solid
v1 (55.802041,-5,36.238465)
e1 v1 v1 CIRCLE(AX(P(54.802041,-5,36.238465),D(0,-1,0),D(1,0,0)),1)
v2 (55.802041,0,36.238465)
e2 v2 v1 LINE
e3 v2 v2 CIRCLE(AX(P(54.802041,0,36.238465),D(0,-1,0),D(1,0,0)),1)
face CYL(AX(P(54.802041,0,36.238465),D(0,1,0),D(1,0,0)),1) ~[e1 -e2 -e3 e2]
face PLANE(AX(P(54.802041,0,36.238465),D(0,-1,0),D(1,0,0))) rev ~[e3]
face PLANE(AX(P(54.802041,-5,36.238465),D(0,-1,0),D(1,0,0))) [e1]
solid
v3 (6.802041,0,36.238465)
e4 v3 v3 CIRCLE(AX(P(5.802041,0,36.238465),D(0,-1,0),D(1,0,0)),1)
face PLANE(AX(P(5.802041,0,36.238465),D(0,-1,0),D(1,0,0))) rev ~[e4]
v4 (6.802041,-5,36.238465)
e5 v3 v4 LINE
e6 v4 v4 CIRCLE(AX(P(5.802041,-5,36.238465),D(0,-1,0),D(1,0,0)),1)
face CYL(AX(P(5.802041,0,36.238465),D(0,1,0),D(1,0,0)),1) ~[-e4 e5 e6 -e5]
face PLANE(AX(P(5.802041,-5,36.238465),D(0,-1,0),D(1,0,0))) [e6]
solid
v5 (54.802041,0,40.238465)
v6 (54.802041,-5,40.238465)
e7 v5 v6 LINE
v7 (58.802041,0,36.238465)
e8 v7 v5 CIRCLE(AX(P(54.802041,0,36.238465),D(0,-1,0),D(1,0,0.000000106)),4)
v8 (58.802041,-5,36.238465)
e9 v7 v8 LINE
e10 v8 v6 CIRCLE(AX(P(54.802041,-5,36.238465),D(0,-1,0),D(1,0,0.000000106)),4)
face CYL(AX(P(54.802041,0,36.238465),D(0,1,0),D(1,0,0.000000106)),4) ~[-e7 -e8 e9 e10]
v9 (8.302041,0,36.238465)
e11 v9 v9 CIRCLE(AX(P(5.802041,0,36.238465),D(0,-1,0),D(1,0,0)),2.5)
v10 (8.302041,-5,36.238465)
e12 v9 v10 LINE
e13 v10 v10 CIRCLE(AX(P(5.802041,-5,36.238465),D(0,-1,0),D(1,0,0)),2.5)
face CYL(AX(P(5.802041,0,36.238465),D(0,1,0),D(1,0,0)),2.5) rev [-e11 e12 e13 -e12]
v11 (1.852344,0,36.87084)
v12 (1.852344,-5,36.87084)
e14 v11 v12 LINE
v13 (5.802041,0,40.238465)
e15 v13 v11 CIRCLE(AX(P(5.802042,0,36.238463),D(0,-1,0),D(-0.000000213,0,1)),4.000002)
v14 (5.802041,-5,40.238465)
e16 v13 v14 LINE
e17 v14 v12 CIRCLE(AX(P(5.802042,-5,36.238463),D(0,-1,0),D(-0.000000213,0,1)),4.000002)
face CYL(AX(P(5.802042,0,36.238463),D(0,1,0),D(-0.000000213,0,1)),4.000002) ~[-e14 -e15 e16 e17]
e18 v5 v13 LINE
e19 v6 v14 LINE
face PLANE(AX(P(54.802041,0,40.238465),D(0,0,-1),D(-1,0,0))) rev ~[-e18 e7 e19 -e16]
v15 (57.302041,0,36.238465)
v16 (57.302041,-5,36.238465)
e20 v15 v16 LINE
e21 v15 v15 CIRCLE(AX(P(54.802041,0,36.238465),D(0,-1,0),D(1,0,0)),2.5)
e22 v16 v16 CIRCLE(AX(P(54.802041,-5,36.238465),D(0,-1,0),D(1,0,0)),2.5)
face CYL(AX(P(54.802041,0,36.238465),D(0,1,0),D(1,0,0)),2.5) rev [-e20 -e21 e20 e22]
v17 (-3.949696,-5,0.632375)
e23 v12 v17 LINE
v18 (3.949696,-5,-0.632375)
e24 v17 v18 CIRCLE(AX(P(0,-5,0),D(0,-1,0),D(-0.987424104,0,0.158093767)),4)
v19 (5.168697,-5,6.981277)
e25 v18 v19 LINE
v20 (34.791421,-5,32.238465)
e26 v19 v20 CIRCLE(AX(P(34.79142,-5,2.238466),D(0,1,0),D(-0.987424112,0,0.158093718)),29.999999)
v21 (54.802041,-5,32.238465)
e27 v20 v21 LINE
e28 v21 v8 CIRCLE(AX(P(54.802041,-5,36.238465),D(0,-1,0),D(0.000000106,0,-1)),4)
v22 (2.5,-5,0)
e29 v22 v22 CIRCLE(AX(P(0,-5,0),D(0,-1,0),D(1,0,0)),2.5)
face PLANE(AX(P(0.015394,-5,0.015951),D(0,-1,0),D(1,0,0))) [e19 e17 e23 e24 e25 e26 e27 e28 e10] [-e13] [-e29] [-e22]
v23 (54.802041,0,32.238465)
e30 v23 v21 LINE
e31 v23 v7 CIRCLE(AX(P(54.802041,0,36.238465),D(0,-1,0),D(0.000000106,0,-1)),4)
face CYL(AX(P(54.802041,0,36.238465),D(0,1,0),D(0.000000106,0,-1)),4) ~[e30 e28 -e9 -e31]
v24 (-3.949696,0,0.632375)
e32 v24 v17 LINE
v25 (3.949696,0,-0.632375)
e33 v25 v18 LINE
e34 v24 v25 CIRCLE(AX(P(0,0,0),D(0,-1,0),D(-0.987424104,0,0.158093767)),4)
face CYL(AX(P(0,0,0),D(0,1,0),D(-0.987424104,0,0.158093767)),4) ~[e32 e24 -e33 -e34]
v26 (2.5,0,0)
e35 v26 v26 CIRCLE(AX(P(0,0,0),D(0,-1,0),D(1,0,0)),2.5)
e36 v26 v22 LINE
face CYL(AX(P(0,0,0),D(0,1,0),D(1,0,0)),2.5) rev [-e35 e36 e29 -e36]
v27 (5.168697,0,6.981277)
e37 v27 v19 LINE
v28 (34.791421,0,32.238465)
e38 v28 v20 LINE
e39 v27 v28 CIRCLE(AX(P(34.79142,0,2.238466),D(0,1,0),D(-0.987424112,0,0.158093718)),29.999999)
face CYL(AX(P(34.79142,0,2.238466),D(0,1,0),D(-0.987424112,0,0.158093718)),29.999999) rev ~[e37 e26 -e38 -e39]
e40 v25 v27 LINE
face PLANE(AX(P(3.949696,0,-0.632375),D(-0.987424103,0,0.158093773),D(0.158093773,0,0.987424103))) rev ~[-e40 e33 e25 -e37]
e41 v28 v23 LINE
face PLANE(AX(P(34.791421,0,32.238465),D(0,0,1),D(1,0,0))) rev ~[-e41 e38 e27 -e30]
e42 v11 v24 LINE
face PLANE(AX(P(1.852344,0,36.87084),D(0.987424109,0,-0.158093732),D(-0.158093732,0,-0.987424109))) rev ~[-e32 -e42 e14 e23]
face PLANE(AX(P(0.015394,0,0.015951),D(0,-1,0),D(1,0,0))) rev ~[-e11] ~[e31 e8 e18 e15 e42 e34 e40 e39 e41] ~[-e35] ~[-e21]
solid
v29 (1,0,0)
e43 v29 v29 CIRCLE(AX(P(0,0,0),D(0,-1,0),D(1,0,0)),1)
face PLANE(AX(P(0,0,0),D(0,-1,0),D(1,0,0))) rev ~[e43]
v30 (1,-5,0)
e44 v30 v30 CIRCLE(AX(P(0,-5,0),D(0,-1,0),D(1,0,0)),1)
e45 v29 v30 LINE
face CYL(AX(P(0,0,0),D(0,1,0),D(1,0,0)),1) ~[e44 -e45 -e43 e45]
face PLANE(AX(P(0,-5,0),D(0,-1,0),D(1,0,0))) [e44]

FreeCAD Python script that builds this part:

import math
import FreeCAD as App
import Part
import Sketcher
Q = App.Units.Quantity

doc = App.newDocument("Part")
body = doc.addObject("PartDesign::Body", "Body")
body.AllowCompound = True

# Sketch on XZ plane
sketch1 = body.newObject("Sketcher::SketchObject", "Sketch")
sketch1.AttachmentSupport = (doc.getObject("XZ_Plane"), [""])
sketch1.MapMode = "FlatFace"
sketch1.addGeometry(Part.ArcOfCircle(Part.Circle(App.Vector(0, 0, 0), App.Vector(0, 0, 1), 4), math.radians(170.903731), math.radians(350.903731)), False)
sketch1.addGeometry(Part.LineSegment(App.Vector(3.949696, -0.632375, 0), App.Vector(5.168697, 6.981277, 0)), False)
sketch1.addGeometry(Part.ArcOfCircle(Part.Circle(App.Vector(34.79142, 2.238466, 0), App.Vector(0, 0, 1), 29.999999), math.radians(89.999998), math.radians(170.903734)), False)
sketch1.addGeometry(Part.LineSegment(App.Vector(34.791421, 32.238465, 0), App.Vector(54.802041, 32.238465, 0)), False)
sketch1.addGeometry(Part.ArcOfCircle(Part.Circle(App.Vector(54.802041, 36.238465, 0), App.Vector(0, 0, 1), 4), math.radians(-89.999994), math.radians(-0.000006)), False)
sketch1.addGeometry(Part.ArcOfCircle(Part.Circle(App.Vector(54.802041, 36.238465, 0), App.Vector(0, 0, 1), 4), math.radians(0.000006), math.radians(89.999994)), False)
sketch1.addGeometry(Part.LineSegment(App.Vector(54.802041, 40.238465, 0), App.Vector(5.802041, 40.238465, 0)), False)
sketch1.addGeometry(Part.ArcOfCircle(Part.Circle(App.Vector(5.802042, 36.238463, 0), App.Vector(0, 0, 1), 4.000002), math.radians(90.000012), math.radians(170.903712)), False)
sketch1.addGeometry(Part.LineSegment(App.Vector(1.852344, 36.87084, 0), App.Vector(-3.949696, 0.632375, 0)), False)
sketch1.addGeometry(Part.Circle(App.Vector(0, 0, 0), App.Vector(0, 0, 1), 2.5), False)
sketch1.addGeometry(Part.Circle(App.Vector(5.802041, 36.238465, 0), App.Vector(0, 0, 1), 2.5), False)
sketch1.addGeometry(Part.Circle(App.Vector(54.802041, 36.238465, 0), App.Vector(0, 0, 1), 2.5), False)
sketch1.addGeometry(Part.Circle(App.Vector(5.802041, 36.238465, 0), App.Vector(0, 0, 1), 1), False)
sketch1.addGeometry(Part.Circle(App.Vector(0, 0, 0), App.Vector(0, 0, 1), 1), False)
sketch1.addGeometry(Part.Circle(App.Vector(54.802041, 36.238465, 0), App.Vector(0, 0, 1), 1), False)
sketch1.addConstraint(Sketcher.Constraint("Tangent", 0, 2, 1, 1))
sketch1.addConstraint(Sketcher.Constraint("Tangent", 1, 2, 2, 2))
sketch1.addConstraint(Sketcher.Constraint("Tangent", 2, 1, 3, 1))
sketch1.addConstraint(Sketcher.Constraint("Tangent", 3, 2, 4, 1))
sketch1.addConstraint(Sketcher.Constraint("Tangent", 4, 2, 5, 1))
sketch1.addConstraint(Sketcher.Constraint("Tangent", 5, 2, 6, 1))
sketch1.addConstraint(Sketcher.Constraint("Tangent", 6, 2, 7, 1))
sketch1.addConstraint(Sketcher.Constraint("Tangent", 7, 2, 8, 1))
sketch1.addConstraint(Sketcher.Constraint("Tangent", 8, 2, 0, 1))
sketch1.addConstraint(Sketcher.Constraint("Horizontal", 3))
sketch1.addConstraint(Sketcher.Constraint("Horizontal", 6))
sketch1.addConstraint(Sketcher.Constraint("Coincident", 0, 3, -1, 1))
sketch1.addConstraint(Sketcher.Constraint("Coincident", 9, 3, -1, 1))
sketch1.addConstraint(Sketcher.Constraint("Coincident", 13, 3, -1, 1))
sketch1.addConstraint(Sketcher.Constraint("Coincident", 10, 3, 7, 3))
sketch1.addConstraint(Sketcher.Constraint("Coincident", 11, 3, 4, 3))
sketch1.addConstraint(Sketcher.Constraint("Coincident", 12, 3, 7, 3))
sketch1.addConstraint(Sketcher.Constraint("Coincident", 14, 3, 4, 3))
sketch1.addConstraint(Sketcher.Constraint("Equal", 0, 4))
sketch1.addConstraint(Sketcher.Constraint("Equal", 4, 5))
sketch1.addConstraint(Sketcher.Constraint("Equal", 5, 7))
sketch1.addConstraint(Sketcher.Constraint("Equal", 9, 10))
sketch1.addConstraint(Sketcher.Constraint("Equal", 10, 11))
sketch1.addConstraint(Sketcher.Constraint("Equal", 12, 13))
sketch1.addConstraint(Sketcher.Constraint("Equal", 13, 14))
sketch1.addConstraint(Sketcher.Constraint("Parallel", 1, 8))
sketch1.addConstraint(Sketcher.Constraint("Horizontal", 14, 3, 4, 2))
sketch1.addConstraint(Sketcher.Constraint("Diameter", 9, Q("5 mm")))
sketch1.addConstraint(Sketcher.Constraint("Diameter", 12, Q("2 mm")))
sketch1.addConstraint(Sketcher.Constraint("Radius", 0, Q("4 mm")))
sketch1.addConstraint(Sketcher.Constraint("Radius", 2, Q("29.999999 mm")))
sketch1.addConstraint(Sketcher.Constraint("DistanceX", 6, 2, 6, 1, Q("49 mm")))
sketch1.addConstraint(Sketcher.Constraint("Distance", 8, Q("36.7 mm")))
sketch1.addConstraint(Sketcher.Constraint("DistanceX", 0, 2, 1, 2, Q("1.219001 mm")))
pad1 = body.newObject("PartDesign::Pad", "Pad")
pad1.Profile = sketch1
pad1.Length = 5

doc.recompute()
